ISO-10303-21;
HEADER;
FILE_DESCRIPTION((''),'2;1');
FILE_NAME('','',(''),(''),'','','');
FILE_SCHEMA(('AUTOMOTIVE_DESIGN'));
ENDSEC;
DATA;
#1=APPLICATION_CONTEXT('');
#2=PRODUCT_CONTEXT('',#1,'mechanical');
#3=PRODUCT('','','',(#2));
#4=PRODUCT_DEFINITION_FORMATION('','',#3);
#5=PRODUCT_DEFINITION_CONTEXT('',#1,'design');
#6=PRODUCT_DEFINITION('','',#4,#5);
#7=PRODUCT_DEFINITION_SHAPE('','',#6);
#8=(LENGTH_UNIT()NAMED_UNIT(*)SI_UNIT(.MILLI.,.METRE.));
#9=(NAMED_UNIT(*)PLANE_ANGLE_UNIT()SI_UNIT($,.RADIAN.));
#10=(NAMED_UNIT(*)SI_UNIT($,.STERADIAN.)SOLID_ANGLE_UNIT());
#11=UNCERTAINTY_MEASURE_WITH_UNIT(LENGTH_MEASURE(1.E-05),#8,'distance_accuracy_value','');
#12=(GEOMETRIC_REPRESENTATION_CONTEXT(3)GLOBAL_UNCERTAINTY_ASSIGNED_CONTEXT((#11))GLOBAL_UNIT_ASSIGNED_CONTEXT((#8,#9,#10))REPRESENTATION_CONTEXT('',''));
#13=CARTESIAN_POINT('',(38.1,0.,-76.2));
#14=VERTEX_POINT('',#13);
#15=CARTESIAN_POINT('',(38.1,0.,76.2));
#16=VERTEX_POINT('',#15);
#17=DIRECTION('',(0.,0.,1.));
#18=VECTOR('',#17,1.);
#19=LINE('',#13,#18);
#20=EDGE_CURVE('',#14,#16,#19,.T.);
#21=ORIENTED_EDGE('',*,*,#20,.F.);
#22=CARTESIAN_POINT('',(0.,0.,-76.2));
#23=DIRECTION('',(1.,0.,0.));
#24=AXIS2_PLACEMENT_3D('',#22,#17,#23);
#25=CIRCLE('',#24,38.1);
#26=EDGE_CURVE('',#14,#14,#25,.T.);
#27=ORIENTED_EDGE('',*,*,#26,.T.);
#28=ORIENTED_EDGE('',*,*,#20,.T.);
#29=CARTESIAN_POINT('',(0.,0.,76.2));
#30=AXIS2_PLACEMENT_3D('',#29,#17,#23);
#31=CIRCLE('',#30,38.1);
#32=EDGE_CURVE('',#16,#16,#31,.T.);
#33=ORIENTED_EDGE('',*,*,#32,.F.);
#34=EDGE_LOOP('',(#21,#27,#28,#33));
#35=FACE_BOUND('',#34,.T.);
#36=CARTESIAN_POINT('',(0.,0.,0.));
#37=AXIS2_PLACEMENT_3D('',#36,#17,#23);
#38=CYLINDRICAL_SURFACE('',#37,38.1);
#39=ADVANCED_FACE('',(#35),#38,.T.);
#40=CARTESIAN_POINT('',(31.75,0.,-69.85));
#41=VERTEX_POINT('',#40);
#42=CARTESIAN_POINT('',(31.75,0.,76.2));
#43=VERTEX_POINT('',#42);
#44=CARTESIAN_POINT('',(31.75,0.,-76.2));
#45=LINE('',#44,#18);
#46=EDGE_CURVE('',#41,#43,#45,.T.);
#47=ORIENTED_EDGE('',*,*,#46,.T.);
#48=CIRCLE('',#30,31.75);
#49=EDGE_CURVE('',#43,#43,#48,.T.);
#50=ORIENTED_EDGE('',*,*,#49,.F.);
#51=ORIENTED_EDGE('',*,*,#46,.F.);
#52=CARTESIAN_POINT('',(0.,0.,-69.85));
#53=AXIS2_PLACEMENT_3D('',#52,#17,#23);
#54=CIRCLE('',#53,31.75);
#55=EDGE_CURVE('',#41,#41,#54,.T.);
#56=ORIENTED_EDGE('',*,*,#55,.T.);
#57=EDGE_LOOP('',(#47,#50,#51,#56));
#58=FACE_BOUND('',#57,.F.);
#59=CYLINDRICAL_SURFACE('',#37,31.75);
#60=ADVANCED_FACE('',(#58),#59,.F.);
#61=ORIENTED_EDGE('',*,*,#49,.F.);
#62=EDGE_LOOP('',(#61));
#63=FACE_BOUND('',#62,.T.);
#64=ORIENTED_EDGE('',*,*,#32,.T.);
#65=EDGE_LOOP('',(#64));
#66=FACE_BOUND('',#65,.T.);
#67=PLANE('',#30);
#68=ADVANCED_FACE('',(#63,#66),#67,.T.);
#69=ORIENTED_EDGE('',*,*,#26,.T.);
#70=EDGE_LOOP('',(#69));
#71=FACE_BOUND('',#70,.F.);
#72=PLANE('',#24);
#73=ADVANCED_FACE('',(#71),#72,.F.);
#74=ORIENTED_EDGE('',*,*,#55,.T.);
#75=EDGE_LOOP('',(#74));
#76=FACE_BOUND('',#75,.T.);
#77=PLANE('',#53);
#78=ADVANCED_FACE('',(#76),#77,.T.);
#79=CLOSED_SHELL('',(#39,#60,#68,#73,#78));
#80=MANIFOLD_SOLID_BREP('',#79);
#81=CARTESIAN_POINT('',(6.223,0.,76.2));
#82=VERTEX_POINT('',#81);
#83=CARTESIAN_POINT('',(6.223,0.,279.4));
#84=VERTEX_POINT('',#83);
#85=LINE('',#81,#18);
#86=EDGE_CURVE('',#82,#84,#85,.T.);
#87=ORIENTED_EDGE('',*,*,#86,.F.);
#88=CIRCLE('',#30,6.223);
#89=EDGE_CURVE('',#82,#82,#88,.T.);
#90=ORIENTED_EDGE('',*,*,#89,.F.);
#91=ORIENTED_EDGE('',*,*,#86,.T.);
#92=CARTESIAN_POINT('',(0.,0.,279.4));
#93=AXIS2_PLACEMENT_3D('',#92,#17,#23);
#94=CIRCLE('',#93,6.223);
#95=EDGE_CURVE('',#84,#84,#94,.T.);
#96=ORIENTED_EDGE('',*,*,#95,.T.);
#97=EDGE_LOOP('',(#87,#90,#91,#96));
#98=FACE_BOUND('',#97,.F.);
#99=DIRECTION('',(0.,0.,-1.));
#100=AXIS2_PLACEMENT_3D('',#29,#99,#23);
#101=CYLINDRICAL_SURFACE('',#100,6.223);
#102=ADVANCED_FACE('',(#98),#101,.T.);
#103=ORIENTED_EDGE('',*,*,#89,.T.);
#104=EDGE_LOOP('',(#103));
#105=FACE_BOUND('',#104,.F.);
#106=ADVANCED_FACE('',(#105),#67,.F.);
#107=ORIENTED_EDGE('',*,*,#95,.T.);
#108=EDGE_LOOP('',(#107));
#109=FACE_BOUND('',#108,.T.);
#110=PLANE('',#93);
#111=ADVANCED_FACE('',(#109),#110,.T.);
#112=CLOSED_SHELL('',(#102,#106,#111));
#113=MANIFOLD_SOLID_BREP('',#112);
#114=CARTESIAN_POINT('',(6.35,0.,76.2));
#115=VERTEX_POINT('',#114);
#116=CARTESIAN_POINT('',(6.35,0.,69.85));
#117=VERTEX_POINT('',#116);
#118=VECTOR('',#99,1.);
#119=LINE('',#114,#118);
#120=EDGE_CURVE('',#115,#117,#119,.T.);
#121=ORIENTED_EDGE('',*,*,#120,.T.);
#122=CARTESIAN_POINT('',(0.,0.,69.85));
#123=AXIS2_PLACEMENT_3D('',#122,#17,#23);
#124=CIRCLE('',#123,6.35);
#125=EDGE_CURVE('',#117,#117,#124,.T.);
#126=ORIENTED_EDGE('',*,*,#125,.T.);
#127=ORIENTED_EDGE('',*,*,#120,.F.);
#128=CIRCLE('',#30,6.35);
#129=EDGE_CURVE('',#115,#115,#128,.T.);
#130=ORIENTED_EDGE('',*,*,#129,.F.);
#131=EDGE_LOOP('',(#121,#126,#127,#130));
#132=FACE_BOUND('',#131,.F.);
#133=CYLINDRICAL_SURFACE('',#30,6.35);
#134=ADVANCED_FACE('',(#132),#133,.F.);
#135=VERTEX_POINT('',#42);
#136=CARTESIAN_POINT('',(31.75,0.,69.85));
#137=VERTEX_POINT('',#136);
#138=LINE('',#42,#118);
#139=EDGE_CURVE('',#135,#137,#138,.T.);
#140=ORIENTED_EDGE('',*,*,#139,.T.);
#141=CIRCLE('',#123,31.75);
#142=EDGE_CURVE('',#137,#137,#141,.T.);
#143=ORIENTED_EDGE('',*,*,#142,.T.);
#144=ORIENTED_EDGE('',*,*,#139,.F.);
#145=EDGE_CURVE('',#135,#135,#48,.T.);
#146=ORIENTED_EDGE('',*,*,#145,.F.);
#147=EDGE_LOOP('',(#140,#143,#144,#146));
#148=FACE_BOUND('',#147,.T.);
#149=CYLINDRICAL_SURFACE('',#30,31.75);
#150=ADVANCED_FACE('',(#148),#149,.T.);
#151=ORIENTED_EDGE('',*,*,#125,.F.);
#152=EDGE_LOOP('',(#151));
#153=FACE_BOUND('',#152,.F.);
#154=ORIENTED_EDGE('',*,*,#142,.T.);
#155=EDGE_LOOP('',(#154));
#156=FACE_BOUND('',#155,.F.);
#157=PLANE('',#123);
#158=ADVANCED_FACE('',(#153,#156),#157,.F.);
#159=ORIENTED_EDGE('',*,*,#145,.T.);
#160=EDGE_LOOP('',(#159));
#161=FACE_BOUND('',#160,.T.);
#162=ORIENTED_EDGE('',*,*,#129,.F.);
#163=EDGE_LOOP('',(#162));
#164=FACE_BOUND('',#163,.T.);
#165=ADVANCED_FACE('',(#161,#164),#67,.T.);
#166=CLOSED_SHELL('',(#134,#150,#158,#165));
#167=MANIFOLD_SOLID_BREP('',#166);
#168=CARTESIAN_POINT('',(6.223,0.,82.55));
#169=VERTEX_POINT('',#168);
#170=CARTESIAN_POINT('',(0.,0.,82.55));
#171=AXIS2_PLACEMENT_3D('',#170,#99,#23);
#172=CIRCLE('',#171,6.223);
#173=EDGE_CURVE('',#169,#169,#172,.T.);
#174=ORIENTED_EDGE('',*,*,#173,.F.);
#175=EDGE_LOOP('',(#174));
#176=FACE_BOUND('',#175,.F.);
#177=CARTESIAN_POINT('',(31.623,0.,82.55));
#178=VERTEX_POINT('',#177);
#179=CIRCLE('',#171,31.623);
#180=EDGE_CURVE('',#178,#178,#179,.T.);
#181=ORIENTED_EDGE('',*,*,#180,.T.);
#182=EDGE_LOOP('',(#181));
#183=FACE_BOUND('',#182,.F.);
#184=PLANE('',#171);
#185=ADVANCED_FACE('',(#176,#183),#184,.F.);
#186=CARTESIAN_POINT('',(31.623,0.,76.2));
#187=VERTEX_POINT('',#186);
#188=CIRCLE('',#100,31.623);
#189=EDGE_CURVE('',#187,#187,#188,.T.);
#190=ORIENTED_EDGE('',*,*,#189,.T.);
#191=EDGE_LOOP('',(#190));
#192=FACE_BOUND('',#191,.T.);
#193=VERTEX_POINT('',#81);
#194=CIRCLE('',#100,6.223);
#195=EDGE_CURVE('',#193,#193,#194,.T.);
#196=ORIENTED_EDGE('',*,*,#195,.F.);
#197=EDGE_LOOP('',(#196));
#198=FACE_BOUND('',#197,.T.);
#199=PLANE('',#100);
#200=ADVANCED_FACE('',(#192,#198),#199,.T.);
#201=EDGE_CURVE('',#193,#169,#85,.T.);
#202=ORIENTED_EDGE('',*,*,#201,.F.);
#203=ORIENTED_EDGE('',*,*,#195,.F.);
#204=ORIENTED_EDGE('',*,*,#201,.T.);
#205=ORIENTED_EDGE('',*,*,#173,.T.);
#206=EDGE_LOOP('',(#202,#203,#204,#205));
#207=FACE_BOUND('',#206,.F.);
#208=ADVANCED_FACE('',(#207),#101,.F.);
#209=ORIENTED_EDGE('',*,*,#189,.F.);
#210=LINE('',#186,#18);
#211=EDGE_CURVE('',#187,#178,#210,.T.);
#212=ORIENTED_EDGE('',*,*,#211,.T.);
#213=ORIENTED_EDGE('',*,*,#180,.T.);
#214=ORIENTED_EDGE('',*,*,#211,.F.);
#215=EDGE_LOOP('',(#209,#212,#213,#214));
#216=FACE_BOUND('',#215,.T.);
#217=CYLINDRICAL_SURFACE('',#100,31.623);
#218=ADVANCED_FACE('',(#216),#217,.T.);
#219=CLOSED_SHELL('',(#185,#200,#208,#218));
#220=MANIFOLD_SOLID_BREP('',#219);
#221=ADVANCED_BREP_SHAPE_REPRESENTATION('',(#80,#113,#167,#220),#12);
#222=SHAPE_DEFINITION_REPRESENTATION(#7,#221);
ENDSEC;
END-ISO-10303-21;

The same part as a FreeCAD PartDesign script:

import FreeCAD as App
import Part
import Sketcher
Q = App.Units.Quantity


def faces_at(feature, points):
    """Names of the faces that lie closest to the given points."""
    faces = feature.Shape.Faces
    near = lambda p: min(range(len(faces)), key=lambda i: faces[i].distToShape(Part.Vertex(*p))[0])
    return sorted({f"Face{near(p) + 1}" for p in points})

doc = App.newDocument("Part")
body = doc.addObject("PartDesign::Body", "Body")

# Sketch on XY plane
sketch1 = body.newObject("Sketcher::SketchObject", "Sketch")
sketch1.AttachmentSupport = (doc.getObject("XY_Plane"), [""])
sketch1.MapMode = "FlatFace"
sketch1.addGeometry(Part.Circle(App.Vector(0, 0, 0), App.Vector(0, 0, 1), 38), False)
sketch1.addConstraint(Sketcher.Constraint("Coincident", 0, 3, -1, 1))
sketch1.addConstraint(Sketcher.Constraint("Diameter", 0, Q("3 in")))
pad1 = body.newObject("PartDesign::Pad", "Pad")
pad1.Profile = sketch1
pad1.Length = Q("6 in")
pad1.Midplane = True
doc.recompute()

thickness = body.newObject("PartDesign::Thickness", "Thickness")
thickness.Base = (pad1, faces_at(pad1, [(0, 0, 76.2)]))
thickness.Value = Q("0.25 in")
thickness.Reversed = True
thickness.Join = "Arc"
body2 = doc.addObject("PartDesign::Body", "Body001")

# Sketch on XY plane
sketch2 = body2.newObject("Sketcher::SketchObject", "Sketch001")
sketch2.AttachmentSupport = (doc.getObject("XY_Plane001"), [""])
sketch2.MapMode = "FlatFace"
sketch2.AttachmentOffset = App.Placement(App.Vector(0, 0, 3 * 25.4), App.Rotation())
sketch2.addGeometry(Part.Circle(App.Vector(0, 0, 0), App.Vector(0, 0, 1), 32), False)
sketch2.addConstraint(Sketcher.Constraint("Coincident", 0, 3, -1, 1))
sketch2.addConstraint(Sketcher.Constraint("Diameter", 0, Q("2.5 in")))
pad2 = body2.newObject("PartDesign::Pad", "Pad001")
pad2.Profile = sketch2
pad2.Length = Q("0.25 in")
pad2.Reversed = True

# Sketch on XY plane
sketch3 = body2.newObject("Sketcher::SketchObject", "Sketch002")
sketch3.AttachmentSupport = (doc.getObject("XY_Plane001"), [""])
sketch3.MapMode = "FlatFace"
sketch3.AttachmentOffset = App.Placement(App.Vector(0, 0, 3 * 25.4), App.Rotation())
sketch3.addGeometry(Part.Circle(App.Vector(0, 0, 0), App.Vector(0, 0, 1), 6), False)
sketch3.addConstraint(Sketcher.Constraint("Coincident", 0, 3, -1, 1))
sketch3.addConstraint(Sketcher.Constraint("Diameter", 0, Q("0.5 in")))
pocket1 = body2.newObject("PartDesign::Pocket", "Pocket")
pocket1.Profile = sketch3
pocket1.Type = "ThroughAll"
body3 = doc.addObject("PartDesign::Body", "Body002")

# Sketch on XY plane
sketch4 = body3.newObject("Sketcher::SketchObject", "Sketch003")
sketch4.AttachmentSupport = (doc.getObject("XY_Plane002"), [""])
sketch4.MapMode = "FlatFace"
sketch4.AttachmentOffset = App.Placement(App.Vector(0, 0, 3 * 25.4), App.Rotation())
sketch4.addGeometry(Part.Circle(App.Vector(0, 0, 0), App.Vector(0, 0, 1), 6), False)
sketch4.addConstraint(Sketcher.Constraint("Coincident", 0, 3, -1, 1))
sketch4.addConstraint(Sketcher.Constraint("Diameter", 0, Q("0.49 in")))
pad3 = body3.newObject("PartDesign::Pad", "Pad002")
pad3.Profile = sketch4
pad3.Length = Q("8 in")
body4 = doc.addObject("PartDesign::Body", "Body003")

# Sketch on XY plane
sketch5 = body4.newObject("Sketcher::SketchObject", "Sketch004")
sketch5.AttachmentSupport = (doc.getObject("XY_Plane003"), [""])
sketch5.MapMode = "FlatFace"
sketch5.AttachmentOffset = App.Placement(App.Vector(0, 0, 3 * 25.4), App.Rotation())
sketch5.addGeometry(Part.Circle(App.Vector(0, 0, 0), App.Vector(0, 0, 1), 32), False)
sketch5.addGeometry(Part.Circle(App.Vector(0, 0, 0), App.Vector(0, 0, 1), 6), False)
sketch5.addConstraint(Sketcher.Constraint("Coincident", 0, 3, -1, 1))
sketch5.addConstraint(Sketcher.Constraint("Coincident", 1, 3, -1, 1))
sketch5.addConstraint(Sketcher.Constraint("Diameter", 0, Q("2.49 in")))
sketch5.addConstraint(Sketcher.Constraint("Diameter", 1, Q("0.49 in")))
pad4 = body4.newObject("PartDesign::Pad", "Pad003")
pad4.Profile = sketch5
pad4.Length = Q("0.25 in")

doc.recompute()
